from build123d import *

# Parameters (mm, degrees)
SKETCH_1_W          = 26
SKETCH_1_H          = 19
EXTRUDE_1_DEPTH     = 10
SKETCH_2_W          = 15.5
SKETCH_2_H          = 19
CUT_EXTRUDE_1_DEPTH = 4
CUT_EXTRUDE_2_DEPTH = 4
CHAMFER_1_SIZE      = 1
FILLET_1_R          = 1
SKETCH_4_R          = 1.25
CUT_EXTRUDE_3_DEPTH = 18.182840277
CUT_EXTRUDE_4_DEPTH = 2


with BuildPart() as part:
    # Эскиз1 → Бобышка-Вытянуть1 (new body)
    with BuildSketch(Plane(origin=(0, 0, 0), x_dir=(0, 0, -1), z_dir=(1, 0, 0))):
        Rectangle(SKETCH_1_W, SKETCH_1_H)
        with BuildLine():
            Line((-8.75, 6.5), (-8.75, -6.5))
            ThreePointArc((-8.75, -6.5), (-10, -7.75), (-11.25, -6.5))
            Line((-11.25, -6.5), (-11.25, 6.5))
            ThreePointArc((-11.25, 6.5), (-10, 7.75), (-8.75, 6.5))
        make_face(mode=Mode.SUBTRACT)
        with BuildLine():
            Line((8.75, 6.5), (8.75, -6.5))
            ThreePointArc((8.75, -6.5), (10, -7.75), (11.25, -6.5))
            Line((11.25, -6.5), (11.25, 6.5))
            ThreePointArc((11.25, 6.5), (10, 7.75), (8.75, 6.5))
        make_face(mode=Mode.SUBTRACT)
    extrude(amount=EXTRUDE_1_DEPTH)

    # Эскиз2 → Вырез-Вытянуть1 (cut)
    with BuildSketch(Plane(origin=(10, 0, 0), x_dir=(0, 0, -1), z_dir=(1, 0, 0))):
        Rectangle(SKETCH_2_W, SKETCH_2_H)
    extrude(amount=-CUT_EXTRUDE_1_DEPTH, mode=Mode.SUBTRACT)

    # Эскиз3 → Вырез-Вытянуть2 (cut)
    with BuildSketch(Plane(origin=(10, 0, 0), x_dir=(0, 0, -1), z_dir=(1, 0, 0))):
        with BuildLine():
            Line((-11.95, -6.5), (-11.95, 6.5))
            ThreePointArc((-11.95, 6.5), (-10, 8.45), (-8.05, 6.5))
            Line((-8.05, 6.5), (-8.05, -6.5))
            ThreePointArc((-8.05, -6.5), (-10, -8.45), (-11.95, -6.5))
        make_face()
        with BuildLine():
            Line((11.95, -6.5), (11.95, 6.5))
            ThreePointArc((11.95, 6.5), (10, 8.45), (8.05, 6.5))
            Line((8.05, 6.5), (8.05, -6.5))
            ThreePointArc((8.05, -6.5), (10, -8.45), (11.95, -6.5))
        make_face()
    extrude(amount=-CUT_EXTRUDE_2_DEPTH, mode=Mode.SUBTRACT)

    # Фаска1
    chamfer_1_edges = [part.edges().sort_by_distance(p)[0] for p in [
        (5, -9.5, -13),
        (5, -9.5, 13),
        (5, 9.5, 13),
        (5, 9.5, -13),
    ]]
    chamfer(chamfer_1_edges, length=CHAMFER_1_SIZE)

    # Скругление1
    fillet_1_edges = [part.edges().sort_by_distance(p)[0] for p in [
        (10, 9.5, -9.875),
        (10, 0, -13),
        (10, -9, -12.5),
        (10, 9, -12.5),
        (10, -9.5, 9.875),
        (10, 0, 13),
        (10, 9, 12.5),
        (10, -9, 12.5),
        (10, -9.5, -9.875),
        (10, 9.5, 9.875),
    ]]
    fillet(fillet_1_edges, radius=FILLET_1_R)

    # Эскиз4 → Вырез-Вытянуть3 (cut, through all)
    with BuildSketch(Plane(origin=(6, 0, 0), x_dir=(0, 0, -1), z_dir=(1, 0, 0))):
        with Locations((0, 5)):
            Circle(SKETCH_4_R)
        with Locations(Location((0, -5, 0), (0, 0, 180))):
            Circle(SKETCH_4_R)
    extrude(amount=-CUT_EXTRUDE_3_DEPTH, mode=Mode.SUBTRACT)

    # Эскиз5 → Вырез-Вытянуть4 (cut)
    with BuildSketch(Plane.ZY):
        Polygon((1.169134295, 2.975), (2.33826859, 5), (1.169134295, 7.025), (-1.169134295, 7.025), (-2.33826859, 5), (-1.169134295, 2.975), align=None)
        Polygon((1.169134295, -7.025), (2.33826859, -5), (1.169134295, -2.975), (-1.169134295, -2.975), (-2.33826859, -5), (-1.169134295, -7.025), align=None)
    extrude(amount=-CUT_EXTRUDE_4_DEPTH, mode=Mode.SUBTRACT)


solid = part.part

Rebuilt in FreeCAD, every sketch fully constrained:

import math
import FreeCAD as App
import Part
import Sketcher

V = App.Vector
Q = App.Units.Quantity


def edges_at(feature, points):
    """Names of the edges that pass closest to the given points."""
    edges = feature.Shape.Edges
    near = lambda p: min(range(len(edges)), key=lambda i: edges[i].distToShape(Part.Vertex(*p))[0])
    return sorted({f"Edge{near(p) + 1}" for p in points})

doc = App.newDocument("Part")
params = doc.addObject("Spreadsheet::Sheet", "Params")
for row, (alias, value) in enumerate([
    ("sketch1_width", "19 mm"),
    ("sketch1_width2", "13 mm"),
    ("sketch1_height", "26 mm"),
    ("sketch1_radius", "1.25 mm"),
    ("pad1_length", "10 mm"),
    ("sketch2_width", "19 mm"),
    ("sketch2_height", "15.5 mm"),
    ("pocket1_length", "4 mm"),
    ("sketch3_width", "13 mm"),
    ("sketch3_radius", "1.95 mm"),
    ("pocket2_length", "4 mm"),
    ("chamfer_size", "1 mm"),
    ("fillet_radius", "1 mm"),
    ("sketch4_diameter", "2.5 mm"),
    ("pocket4_length", "2 mm"),
], start=1):
    params.set(f"A{row}", alias)
    params.set(f"B{row}", "=" + value)
    params.setAlias(f"B{row}", alias)

body = doc.addObject("PartDesign::Body", "Body")

sketch1 = body.newObject("Sketcher::SketchObject", "Sketch")
sketch1.AttachmentSupport = (doc.getObject("YZ_Plane"), [""])
sketch1.MapMode = "FlatFace"
sketch1.addGeometry(Part.LineSegment(V(9.5, 13, 0), V(-9.5, 13, 0)), False)
sketch1.addGeometry(Part.LineSegment(V(-9.5, 13, 0), V(-9.5, -13, 0)), False)
sketch1.addGeometry(Part.LineSegment(V(-9.5, -13, 0), V(9.5, -13, 0)), False)
sketch1.addGeometry(Part.LineSegment(V(9.5, -13, 0), V(9.5, 13, 0)), False)
sketch1.addGeometry(Part.ArcOfCircle(Part.Circle(V(6.5, 10, 0), V(0, 0, 1), 1.25), math.radians(-90), math.radians(90)), False)
sketch1.addGeometry(Part.LineSegment(V(6.5, 8.75, 0), V(-6.5, 8.75, 0)), False)
sketch1.addGeometry(Part.ArcOfCircle(Part.Circle(V(-6.5, 10, 0), V(0, 0, 1), 1.25), math.radians(90), math.radians(270)), False)
sketch1.addGeometry(Part.LineSegment(V(-6.5, 11.25, 0), V(6.5, 11.25, 0)), False)
sketch1.addGeometry(Part.LineSegment(V(-6.5, -8.75, 0), V(6.5, -8.75, 0)), False)
sketch1.addGeometry(Part.ArcOfCircle(Part.Circle(V(6.5, -10, 0), V(0, 0, 1), 1.25), math.radians(-90), math.radians(90)), False)
sketch1.addGeometry(Part.LineSegment(V(6.5, -11.25, 0), V(-6.5, -11.25, 0)), False)
sketch1.addGeometry(Part.ArcOfCircle(Part.Circle(V(-6.5, -10, 0), V(0, 0, 1), 1.25), math.radians(90), math.radians(270)), False)
sketch1.addConstraint(Sketcher.Constraint("Coincident", 0, 2, 1, 1))
sketch1.addConstraint(Sketcher.Constraint("Coincident", 1, 2, 2, 1))
sketch1.addConstraint(Sketcher.Constraint("Coincident", 2, 2, 3, 1))
sketch1.addConstraint(Sketcher.Constraint("Coincident", 3, 2, 0, 1))
sketch1.addConstraint(Sketcher.Constraint("Tangent", 4, 1, 5, 1))
sketch1.addConstraint(Sketcher.Constraint("Tangent", 5, 2, 6, 2))
sketch1.addConstraint(Sketcher.Constraint("Tangent", 6, 1, 7, 1))
sketch1.addConstraint(Sketcher.Constraint("Tangent", 7, 2, 4, 2))
sketch1.addConstraint(Sketcher.Constraint("Tangent", 8, 2, 9, 2))
sketch1.addConstraint(Sketcher.Constraint("Tangent", 9, 1, 10, 1))
sketch1.addConstraint(Sketcher.Constraint("Tangent", 10, 2, 11, 2))
sketch1.addConstraint(Sketcher.Constraint("Tangent", 11, 1, 8, 1))
sketch1.addConstraint(Sketcher.Constraint("Horizontal", 0))
sketch1.addConstraint(Sketcher.Constraint("Vertical", 1))
sketch1.addConstraint(Sketcher.Constraint("Horizontal", 2))
sketch1.addConstraint(Sketcher.Constraint("Vertical", 3))
sketch1.addConstraint(Sketcher.Constraint("Horizontal", 5))
sketch1.addConstraint(Sketcher.Constraint("Horizontal", 7))
sketch1.addConstraint(Sketcher.Constraint("Horizontal", 8))
sketch1.addConstraint(Sketcher.Constraint("Horizontal", 10))
sketch1.addConstraint(Sketcher.Constraint("Equal", 6, 9))
sketch1.addConstraint(Sketcher.Constraint("Symmetric", 6, 3, 9, 3, -1, 1))
sketch1.addConstraint(Sketcher.Constraint("Symmetric", 0, 2, 2, 2, -1, 1))
sketch1.addConstraint(Sketcher.Constraint("Vertical", 4, 3, 9, 3))
sketch1.addConstraint(Sketcher.Constraint("Vertical", 6, 3, 11, 3))
sketch1.addConstraint(Sketcher.Constraint("DistanceX", 0, 2, 0, 1, Q("19 mm")))
sketch1.addConstraint(Sketcher.Constraint("DistanceX", 5, 2, 5, 1, Q("13 mm")))
sketch1.addConstraint(Sketcher.Constraint("DistanceY", 1, 2, 1, 1, Q("26 mm")))
sketch1.addConstraint(Sketcher.Constraint("Radius", 4, Q("1.25 mm")))
sketch1.addConstraint(Sketcher.Constraint("DistanceY", -1, 1, 4, 3, Q("10 mm")))
sketch1.setExpression("Constraints[25]", "Params.sketch1_width")
sketch1.setExpression("Constraints[26]", "Params.sketch1_width2")
sketch1.setExpression("Constraints[27]", "Params.sketch1_height")
sketch1.setExpression("Constraints[28]", "Params.sketch1_radius")
pad1 = body.newObject("PartDesign::Pad", "Pad")
pad1.Profile = sketch1
pad1.setExpression("Length", "Params.pad1_length")

sketch2 = body.newObject("Sketcher::SketchObject", "Sketch001")
sketch2.AttachmentSupport = (doc.getObject("YZ_Plane"), [""])
sketch2.MapMode = "FlatFace"
sketch2.AttachmentOffset = App.Placement(V(0, 0, 10), App.Rotation())
sketch2.addGeometry(Part.LineSegment(V(9.5, 7.75, 0), V(-9.5, 7.75, 0)), False)
sketch2.addGeometry(Part.LineSegment(V(-9.5, 7.75, 0), V(-9.5, -7.75, 0)), False)
sketch2.addGeometry(Part.LineSegment(V(-9.5, -7.75, 0), V(9.5, -7.75, 0)), False)
sketch2.addGeometry(Part.LineSegment(V(9.5, -7.75, 0), V(9.5, 7.75, 0)), False)
sketch2.addConstraint(Sketcher.Constraint("Coincident", 0, 2, 1, 1))
sketch2.addConstraint(Sketcher.Constraint("Coincident", 1, 2, 2, 1))
sketch2.addConstraint(Sketcher.Constraint("Coincident", 2, 2, 3, 1))
sketch2.addConstraint(Sketcher.Constraint("Coincident", 3, 2, 0, 1))
sketch2.addConstraint(Sketcher.Constraint("Horizontal", 0))
sketch2.addConstraint(Sketcher.Constraint("Vertical", 1))
sketch2.addConstraint(Sketcher.Constraint("Horizontal", 2))
sketch2.addConstraint(Sketcher.Constraint("Vertical", 3))
sketch2.addConstraint(Sketcher.Constraint("Symmetric", 0, 2, 2, 2, -1, 1))
sketch2.addConstraint(Sketcher.Constraint("DistanceX", 0, 2, 0, 1, Q("19 mm")))
sketch2.addConstraint(Sketcher.Constraint("DistanceY", 1, 2, 1, 1, Q("15.5 mm")))
sketch2.setExpression("Constraints[9]", "Params.sketch2_width")
sketch2.setExpression("Constraints[10]", "Params.sketch2_height")
pocket1 = body.newObject("PartDesign::Pocket", "Pocket")
pocket1.Profile = sketch2
pocket1.setExpression("Length", "Params.pocket1_length")

sketch3 = body.newObject("Sketcher::SketchObject", "Sketch002")
sketch3.AttachmentSupport = (doc.getObject("YZ_Plane"), [""])
sketch3.MapMode = "FlatFace"
sketch3.AttachmentOffset = App.Placement(V(0, 0, 10), App.Rotation())
sketch3.addGeometry(Part.LineSegment(V(6.5, 11.95, 0), V(-6.5, 11.95, 0)), False)
sketch3.addGeometry(Part.ArcOfCircle(Part.Circle(V(-6.5, 10, 0), V(0, 0, 1), 1.95), math.radians(90), math.radians(270)), False)
sketch3.addGeometry(Part.LineSegment(V(-6.5, 8.05, 0), V(6.5, 8.05, 0)), False)
sketch3.addGeometry(Part.ArcOfCircle(Part.Circle(V(6.5, 10, 0), V(0, 0, 1), 1.95), math.radians(-90), math.radians(90)), False)
sketch3.addGeometry(Part.LineSegment(V(-6.5, -11.95, 0), V(6.5, -11.95, 0)), False)
sketch3.addGeometry(Part.ArcOfCircle(Part.Circle(V(6.5, -10, 0), V(0, 0, 1), 1.95), math.radians(-90), math.radians(90)), False)
sketch3.addGeometry(Part.LineSegment(V(6.5, -8.05, 0), V(-6.5, -8.05, 0)), False)
sketch3.addGeometry(Part.ArcOfCircle(Part.Circle(V(-6.5, -10, 0), V(0, 0, 1), 1.95), math.radians(90), math.radians(270)), False)
sketch3.addConstraint(Sketcher.Constraint("Tangent", 0, 2, 1, 1))
sketch3.addConstraint(Sketcher.Constraint("Tangent", 1, 2, 2, 1))
sketch3.addConstraint(Sketcher.Constraint("Tangent", 2, 2, 3, 1))
sketch3.addConstraint(Sketcher.Constraint("Tangent", 3, 2, 0, 1))
sketch3.addConstraint(Sketcher.Constraint("Tangent", 4, 2, 5, 1))
sketch3.addConstraint(Sketcher.Constraint("Tangent", 5, 2, 6, 1))
sketch3.addConstraint(Sketcher.Constraint("Tangent", 6, 2, 7, 1))
sketch3.addConstraint(Sketcher.Constraint("Tangent", 7, 2, 4, 1))
sketch3.addConstraint(Sketcher.Constraint("Horizontal", 0))
sketch3.addConstraint(Sketcher.Constraint("Horizontal", 2))
sketch3.addConstraint(Sketcher.Constraint("Horizontal", 4))
sketch3.addConstraint(Sketcher.Constraint("Horizontal", 6))
sketch3.addConstraint(Sketcher.Constraint("Equal", 3, 5))
sketch3.addConstraint(Sketcher.Constraint("Symmetric", 1, 3, 5, 3, -1, 1))
sketch3.addConstraint(Sketcher.Constraint("Vertical", 3, 3, 5, 3))
sketch3.addConstraint(Sketcher.Constraint("Vertical", 1, 3, 7, 3))
sketch3.addConstraint(Sketcher.Constraint("DistanceX", 0, 2, 0, 1, Q("13 mm")))
sketch3.addConstraint(Sketcher.Constraint("Radius", 1, Q("1.95 mm")))
sketch3.addConstraint(Sketcher.Constraint("DistanceY", -1, 1, 1, 3, Q("10 mm")))
sketch3.setExpression("Constraints[16]", "Params.sketch3_width")
sketch3.setExpression("Constraints[17]", "Params.sketch3_radius")
pocket2 = body.newObject("PartDesign::Pocket", "Pocket001")
pocket2.Profile = sketch3
pocket2.setExpression("Length", "Params.pocket2_length")
doc.recompute()

chamfer = body.newObject("PartDesign::Chamfer", "Chamfer")
chamfer.Base = (pocket2, edges_at(pocket2, [
    (5, -9.5, -13),
    (5, -9.5, 13),
    (5, 9.5, 13),
    (5, 9.5, -13),
]))
chamfer.setExpression("Size", "Params.chamfer_size")
doc.recompute()

fillet = body.newObject("PartDesign::Fillet", "Fillet")
fillet.Base = (chamfer, edges_at(chamfer, [
    (10, 9.5, -9.875),
    (10, 0, -13),
    (10, -9, -12.5),
    (10, 9, -12.5),
    (10, -9.5, 9.875),
    (10, 0, 13),
    (10, 9, 12.5),
    (10, -9, 12.5),
    (10, -9.5, -9.875),
    (10, 9.5, 9.875),
]))
fillet.setExpression("Radius", "Params.fillet_radius")

sketch4 = body.newObject("Sketcher::SketchObject", "Sketch003")
sketch4.AttachmentSupport = (doc.getObject("YZ_Plane"), [""])
sketch4.MapMode = "FlatFace"
sketch4.AttachmentOffset = App.Placement(V(0, 0, 6), App.Rotation())
sketch4.addGeometry(Part.Circle(V(5, 0, 0), V(0, 0, 1), 1.25), False)
sketch4.addGeometry(Part.Circle(V(-5, 0, 0), V(0, 0, 1), 1.25), False)
sketch4.addConstraint(Sketcher.Constraint("Equal", 0, 1))
sketch4.addConstraint(Sketcher.Constraint("Symmetric", 0, 3, 1, 3, -1, 1))
sketch4.addConstraint(Sketcher.Constraint("PointOnObject", 0, 3, -1))
sketch4.addConstraint(Sketcher.Constraint("Diameter", 0, Q("2.5 mm")))
sketch4.addConstraint(Sketcher.Constraint("DistanceX", -1, 1, 0, 3, Q("5 mm")))
sketch4.setExpression("Constraints[3]", "Params.sketch4_diameter")
pocket3 = body.newObject("PartDesign::Pocket", "Pocket002")
pocket3.Profile = sketch4
pocket3.Type = "ThroughAll"

sketch5 = body.newObject("Sketcher::SketchObject", "Sketch004")
sketch5.AttachmentSupport = (doc.getObject("YZ_Plane"), [""])
sketch5.MapMode = "FlatFace"
sketch5.addGeometry(Part.LineSegment(V(2.975, 1.169134, 0), V(5, 2.338269, 0)), False)
sketch5.addGeometry(Part.LineSegment(V(5, 2.338269, 0), V(7.025, 1.169134, 0)), False)
sketch5.addGeometry(Part.LineSegment(V(7.025, 1.169134, 0), V(7.025, -1.169134, 0)), False)
sketch5.addGeometry(Part.LineSegment(V(7.025, -1.169134, 0), V(5, -2.338269, 0)), False)
sketch5.addGeometry(Part.LineSegment(V(5, -2.338269, 0), V(2.975, -1.169134, 0)), False)
sketch5.addGeometry(Part.LineSegment(V(2.975, -1.169134, 0), V(2.975, 1.169134, 0)), False)
sketch5.addGeometry(Part.LineSegment(V(-7.025, 1.169134, 0), V(-5, 2.338269, 0)), False)
sketch5.addGeometry(Part.LineSegment(V(-5, 2.338269, 0), V(-2.975, 1.169134, 0)), False)
sketch5.addGeometry(Part.LineSegment(V(-2.975, 1.169134, 0), V(-2.975, -1.169134, 0)), False)
sketch5.addGeometry(Part.LineSegment(V(-2.975, -1.169134, 0), V(-5, -2.338269, 0)), False)
sketch5.addGeometry(Part.LineSegment(V(-5, -2.338269, 0), V(-7.025, -1.169134, 0)), False)
sketch5.addGeometry(Part.LineSegment(V(-7.025, -1.169134, 0), V(-7.025, 1.169134, 0)), False)
sketch5.addConstraint(Sketcher.Constraint("Coincident", 0, 2, 1, 1))
sketch5.addConstraint(Sketcher.Constraint("Coincident", 1, 2, 2, 1))
sketch5.addConstraint(Sketcher.Constraint("Coincident", 2, 2, 3, 1))
sketch5.addConstraint(Sketcher.Constraint("Coincident", 3, 2, 4, 1))
sketch5.addConstraint(Sketcher.Constraint("Coincident", 4, 2, 5, 1))
sketch5.addConstraint(Sketcher.Constraint("Coincident", 5, 2, 0, 1))
sketch5.addConstraint(Sketcher.Constraint("Coincident", 6, 2, 7, 1))
sketch5.addConstraint(Sketcher.Constraint("Coincident", 7, 2, 8, 1))
sketch5.addConstraint(Sketcher.Constraint("Coincident", 8, 2, 9, 1))
sketch5.addConstraint(Sketcher.Constraint("Coincident", 9, 2, 10, 1))
sketch5.addConstraint(Sketcher.Constraint("Coincident", 10, 2, 11, 1))
sketch5.addConstraint(Sketcher.Constraint("Coincident", 11, 2, 6, 1))
sketch5.addConstraint(Sketcher.Constraint("Vertical", 2))
sketch5.addConstraint(Sketcher.Constraint("Vertical", 5))
sketch5.addConstraint(Sketcher.Constraint("Vertical", 8))
sketch5.addConstraint(Sketcher.Constraint("Vertical", 11))
sketch5.addConstraint(Sketcher.Constraint("Symmetric", 3, 2, 6, 2, -1, 1))
sketch5.addConstraint(Sketcher.Constraint("Symmetric", 4, 2, 7, 2, -1, 1))
sketch5.addConstraint(Sketcher.Constraint("Symmetric", 0, 2, 9, 2, -1, 1))
sketch5.addConstraint(Sketcher.Constraint("Symmetric", 1, 2, 10, 2, -1, 1))
sketch5.addConstraint(Sketcher.Constraint("Symmetric", 0, 2, 6, 2, -2))
sketch5.addConstraint(Sketcher.Constraint("Parallel", 0, 3))
sketch5.addConstraint(Sketcher.Constraint("Parallel", 1, 4))
sketch5.addConstraint(Sketcher.Constraint("Parallel", 3, 6))
sketch5.addConstraint(Sketcher.Constraint("Parallel", 6, 9))
sketch5.addConstraint(Sketcher.Constraint("Horizontal", 2, 2, 4, 2))
sketch5.addConstraint(Sketcher.Constraint("Horizontal", 1, 2, 5, 2))
sketch5.addConstraint(Sketcher.Constraint("Angle", 0, Q("30 deg")))
sketch5.addConstraint(Sketcher.Constraint("DistanceX", -1, 1, 0, 2, Q("5 mm")))
sketch5.addConstraint(Sketcher.Constraint("DistanceX", 4, 2, 2, 2, Q("4.05 mm")))
sketch5.addConstraint(Sketcher.Constraint("DistanceY", 2, 2, 2, 1, Q("2.338269 mm")))
pocket4 = body.newObject("PartDesign::Pocket", "Pocket003")
pocket4.Profile = sketch5
pocket4.setExpression("Length", "Params.pocket4_length")
pocket4.Reversed = True

doc.recompute()
